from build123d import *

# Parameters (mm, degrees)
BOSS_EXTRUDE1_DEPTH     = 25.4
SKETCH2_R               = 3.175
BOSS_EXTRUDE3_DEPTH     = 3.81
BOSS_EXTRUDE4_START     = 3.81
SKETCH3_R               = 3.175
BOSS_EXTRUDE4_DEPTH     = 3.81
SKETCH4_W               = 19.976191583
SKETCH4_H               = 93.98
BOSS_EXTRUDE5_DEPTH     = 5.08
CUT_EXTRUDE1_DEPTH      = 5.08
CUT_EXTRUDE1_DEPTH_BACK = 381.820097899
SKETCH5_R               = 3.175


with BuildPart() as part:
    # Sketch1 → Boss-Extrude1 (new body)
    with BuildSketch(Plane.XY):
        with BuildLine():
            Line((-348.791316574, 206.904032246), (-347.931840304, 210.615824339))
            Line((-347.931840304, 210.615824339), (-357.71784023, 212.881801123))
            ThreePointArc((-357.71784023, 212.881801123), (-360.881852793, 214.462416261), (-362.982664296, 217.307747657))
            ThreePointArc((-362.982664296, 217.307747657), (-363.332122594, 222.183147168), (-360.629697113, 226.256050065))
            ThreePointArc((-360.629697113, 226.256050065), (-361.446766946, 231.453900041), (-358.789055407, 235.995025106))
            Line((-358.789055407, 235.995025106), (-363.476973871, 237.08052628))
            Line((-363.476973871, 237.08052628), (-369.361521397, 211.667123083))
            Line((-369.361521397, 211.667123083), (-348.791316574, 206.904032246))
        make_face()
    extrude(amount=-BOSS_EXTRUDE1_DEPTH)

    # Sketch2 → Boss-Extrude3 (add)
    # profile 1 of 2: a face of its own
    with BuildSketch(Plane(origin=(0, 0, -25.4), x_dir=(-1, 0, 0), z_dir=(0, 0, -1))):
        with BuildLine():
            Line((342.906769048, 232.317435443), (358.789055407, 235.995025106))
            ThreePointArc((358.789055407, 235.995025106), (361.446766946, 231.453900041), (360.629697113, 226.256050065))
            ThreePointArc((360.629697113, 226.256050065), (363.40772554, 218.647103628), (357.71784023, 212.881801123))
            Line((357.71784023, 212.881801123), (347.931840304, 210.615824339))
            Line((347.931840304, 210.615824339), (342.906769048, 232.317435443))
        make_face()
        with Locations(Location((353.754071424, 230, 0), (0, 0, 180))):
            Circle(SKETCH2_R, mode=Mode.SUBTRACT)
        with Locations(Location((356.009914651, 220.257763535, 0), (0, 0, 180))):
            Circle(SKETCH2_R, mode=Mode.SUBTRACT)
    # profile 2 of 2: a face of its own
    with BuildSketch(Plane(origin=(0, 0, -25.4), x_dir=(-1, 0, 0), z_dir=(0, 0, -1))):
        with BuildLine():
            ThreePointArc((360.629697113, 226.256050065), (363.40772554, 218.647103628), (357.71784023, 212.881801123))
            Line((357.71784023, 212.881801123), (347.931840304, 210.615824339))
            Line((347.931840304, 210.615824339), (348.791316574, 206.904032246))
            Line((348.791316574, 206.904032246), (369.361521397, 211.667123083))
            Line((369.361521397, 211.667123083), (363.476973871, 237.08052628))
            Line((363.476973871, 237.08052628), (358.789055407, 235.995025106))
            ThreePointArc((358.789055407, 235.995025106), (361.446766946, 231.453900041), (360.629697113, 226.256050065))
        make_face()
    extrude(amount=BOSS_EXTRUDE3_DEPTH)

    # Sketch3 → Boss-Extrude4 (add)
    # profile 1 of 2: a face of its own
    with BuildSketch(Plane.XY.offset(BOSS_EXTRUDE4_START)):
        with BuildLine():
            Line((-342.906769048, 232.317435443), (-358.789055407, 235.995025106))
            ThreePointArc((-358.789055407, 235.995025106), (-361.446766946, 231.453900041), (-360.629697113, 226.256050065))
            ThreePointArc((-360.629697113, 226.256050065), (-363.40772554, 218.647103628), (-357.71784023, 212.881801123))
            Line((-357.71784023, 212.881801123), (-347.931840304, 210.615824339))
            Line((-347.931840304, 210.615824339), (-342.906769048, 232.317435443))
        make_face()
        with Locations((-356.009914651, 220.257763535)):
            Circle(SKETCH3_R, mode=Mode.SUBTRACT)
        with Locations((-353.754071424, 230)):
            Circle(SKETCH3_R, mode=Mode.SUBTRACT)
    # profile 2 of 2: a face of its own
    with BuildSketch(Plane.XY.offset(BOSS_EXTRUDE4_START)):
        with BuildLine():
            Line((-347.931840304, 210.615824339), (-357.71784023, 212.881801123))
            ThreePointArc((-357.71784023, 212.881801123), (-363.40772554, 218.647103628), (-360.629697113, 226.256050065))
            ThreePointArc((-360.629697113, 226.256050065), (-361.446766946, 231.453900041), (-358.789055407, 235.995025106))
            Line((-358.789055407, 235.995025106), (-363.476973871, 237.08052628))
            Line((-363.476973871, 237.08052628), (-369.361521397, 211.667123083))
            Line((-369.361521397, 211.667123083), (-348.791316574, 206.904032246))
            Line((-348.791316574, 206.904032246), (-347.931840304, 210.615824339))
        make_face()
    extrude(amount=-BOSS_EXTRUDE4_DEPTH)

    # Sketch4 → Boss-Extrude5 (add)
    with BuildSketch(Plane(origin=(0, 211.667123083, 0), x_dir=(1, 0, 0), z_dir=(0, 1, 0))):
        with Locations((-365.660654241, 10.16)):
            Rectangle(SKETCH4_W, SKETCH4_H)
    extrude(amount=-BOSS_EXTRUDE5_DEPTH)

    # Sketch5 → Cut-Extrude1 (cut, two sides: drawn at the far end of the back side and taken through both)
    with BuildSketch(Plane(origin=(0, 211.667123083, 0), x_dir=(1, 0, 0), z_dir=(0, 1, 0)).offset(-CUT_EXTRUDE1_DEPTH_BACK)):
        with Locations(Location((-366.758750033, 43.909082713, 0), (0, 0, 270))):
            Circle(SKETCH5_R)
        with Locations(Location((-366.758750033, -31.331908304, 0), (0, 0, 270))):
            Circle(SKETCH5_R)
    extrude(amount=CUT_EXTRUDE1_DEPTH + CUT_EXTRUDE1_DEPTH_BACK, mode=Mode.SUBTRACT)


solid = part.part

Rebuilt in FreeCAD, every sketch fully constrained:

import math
import FreeCAD as App
import Part
import Sketcher
from FreeCAD import Vector
Q = App.Units.Quantity


def add_polygon(sketch, points):
    """Adds a closed chain of lines whose ends are joined by coincident constraints."""
    first, n = sketch.GeometryCount, len(points)
    for a, b in zip(points, points[1:] + points[:1]):
        sketch.addGeometry(Part.LineSegment(App.Vector(*a, 0), App.Vector(*b, 0)), False)
    for i in range(n):
        sketch.addConstraint(Sketcher.Constraint("Coincident", first + i, 2, first + (i + 1) % n, 1))

doc = App.newDocument("Part")
body = doc.addObject("PartDesign::Body", "Body")

# Sketch on XY plane
sketch1 = doc.addObject("Sketcher::SketchObject", "Sketch")
body.addObject(sketch1)
sketch1.AttachmentSupport = (doc.XY_Plane, [""])
sketch1.MapMode = "FlatFace"
sketch1.addGeometry([
    Part.LineSegment(Vector(-348.8, 206.9, 0), Vector(-347.9, 210.6, 0)),  # 0
    Part.LineSegment(Vector(-347.9, 210.6, 0), Vector(-357.7, 212.9, 0)),  # 1
    Part.ArcOfCircle(Part.Circle(Vector(-356, 220.3, 0), Vector(0, 0, 1), 7.6), math.radians(-157), math.radians(-103)),  # 2
    Part.ArcOfCircle(Part.Circle(Vector(-356, 220.3, 0), Vector(0, 0, 1), 7.6), math.radians(128), math.radians(203)),  # 3
    Part.ArcOfCircle(Part.Circle(Vector(-353.8, 230, 0), Vector(0, 0, 1), 7.8), math.radians(130), math.radians(209)),  # 4
    Part.LineSegment(Vector(-358.8, 236, 0), Vector(-363.5, 237.1, 0)),  # 5
    Part.LineSegment(Vector(-363.5, 237.1, 0), Vector(-369.4, 211.7, 0)),  # 6
    Part.LineSegment(Vector(-369.4, 211.7, 0), Vector(-348.8, 206.9, 0)),  # 7
], False)
sketch1.addConstraint([
    Sketcher.Constraint("Coincident", 0, 2, 1, 1),
    Sketcher.Constraint("Tangent", 1, 2, 2, 2),
    Sketcher.Constraint("Tangent", 2, 1, 3, 2),
    Sketcher.Constraint("Coincident", 3, 1, 4, 2),
    Sketcher.Constraint("Coincident", 4, 1, 5, 1),
    Sketcher.Constraint("Coincident", 5, 2, 6, 1),
    Sketcher.Constraint("Coincident", 6, 2, 7, 1),
    Sketcher.Constraint("Coincident", 7, 2, 0, 1),
    Sketcher.Constraint("Equal", 2, 3),
    Sketcher.Constraint("Perpendicular", 0, 1),
    Sketcher.Constraint("Parallel", 1, 5),
    Sketcher.Constraint("Perpendicular", 5, 6),
    Sketcher.Constraint("Perpendicular", 6, 7),
    Sketcher.Constraint("Distance", 0, Q("0.15 in")),
    Sketcher.Constraint("Distance", 6, Q("1.027 in")),
    Sketcher.Constraint("Radius", 2, 7.571118),
    Sketcher.Constraint("Radius", 4, 7.828882),
    Sketcher.Constraint("DistanceY", -1, 1, 4, 3, 230.0),
    Sketcher.Constraint("DistanceY", -1, 1, 1, 2, 212.881801),
    Sketcher.Constraint("DistanceX", 1, 2, 0, 2, 9.786),
    Sketcher.Constraint("DistanceY", 4, 1, 5, 2, 1.085501),
    Sketcher.Constraint("DistanceX", 3, 3, 7, 2, 7.218598),
    Sketcher.Constraint("Distance", 7, 21.114459),
    Sketcher.Constraint("DistanceX", 4, 3, -1, 1, 353.754071),
    Sketcher.Constraint("DistanceX", 2, 1, 3, 3, 6.97275),
])
pad1 = doc.addObject("PartDesign::Pad", "Pad")
body.addObject(pad1)
pad1.Profile = sketch1
pad1.Length = Q("1 in")
pad1.Reversed = True

# Sketch on XY plane
sketch2 = doc.addObject("Sketcher::SketchObject", "Sketch001")
body.addObject(sketch2)
sketch2.AttachmentSupport = (doc.XY_Plane, [""])
sketch2.MapMode = "FlatFace"
sketch2.AttachmentOffset = App.Placement(Vector(0, 0, -1 * 25.4), App.Rotation())
add_polygon(sketch2, [(-358.8, 236), (-342.9, 232.3), (-347.9, 210.6), (-348.8, 206.9), (-369.4, 211.7), (-363.5, 237.1)])  # lines 0-5
sketch2.addGeometry(Part.Circle(Vector(-356, 220.3, 0), Vector(0, 0, 1), 3.2), False)  # 6
sketch2.addGeometry(Part.Circle(Vector(-353.8, 230, 0), Vector(0, 0, 1), 3.2), False)  # 7
sketch2.addConstraint([
    Sketcher.Constraint("Equal", 6, 7),
    Sketcher.Constraint("Perpendicular", 0, 1),
    Sketcher.Constraint("Parallel", 1, 2),
    Sketcher.Constraint("Perpendicular", 2, 3),
    Sketcher.Constraint("Perpendicular", 3, 4),
    Sketcher.Constraint("Perpendicular", 4, 5),
    Sketcher.Constraint("Diameter", 6, Q("0.25 in")),
    Sketcher.Constraint("Distance", 2, Q("0.15 in")),
    Sketcher.Constraint("Distance", 1, Q("0.877 in")),
    Sketcher.Constraint("DistanceY", -1, 1, 7, 3, 230.0),
    Sketcher.Constraint("DistanceX", 6, 3, 2, 2, 7.218598),
    Sketcher.Constraint("DistanceY", 1, 2, 3, 2, 1.051299),
    Sketcher.Constraint("DistanceY", 1, 2, 4, 2, 26.464702),
    Sketcher.Constraint("DistanceY", 5, 2, 4, 2, 1.085501),
    Sketcher.Constraint("DistanceX", 7, 3, -1, 1, 353.754071),
    Sketcher.Constraint("DistanceX", 0, 2, -1, 1, 342.906769),
    Sketcher.Constraint("DistanceY", 6, 3, 0, 2, 12.059672),
    Sketcher.Constraint("DistanceY", -1, 1, 6, 3, 220.257764),
])
pad2 = doc.addObject("PartDesign::Pad", "Pad001")
body.addObject(pad2)
pad2.Profile = sketch2
pad2.Length = Q("0.15 in")
pad2.Reversed = True

# Sketch on XY plane
sketch3 = doc.addObject("Sketcher::SketchObject", "Sketch002")
body.addObject(sketch3)
sketch3.AttachmentSupport = (doc.XY_Plane, [""])
sketch3.MapMode = "FlatFace"
sketch3.AttachmentOffset = App.Placement(Vector(0, 0, 0.15 * 25.4), App.Rotation())
add_polygon(sketch3, [(-342.9, 232.3), (-358.8, 236), (-363.5, 237.1), (-369.4, 211.7), (-348.8, 206.9), (-347.9, 210.6)])  # lines 0-5
sketch3.addGeometry(Part.Circle(Vector(-356, 220.3, 0), Vector(0, 0, 1), 3.2), False)  # 6
sketch3.addGeometry(Part.Circle(Vector(-353.8, 230, 0), Vector(0, 0, 1), 3.2), False)  # 7
sketch3.addConstraint([
    Sketcher.Constraint("Equal", 6, 7),
    Sketcher.Constraint("Parallel", 0, 1),
    Sketcher.Constraint("Perpendicular", 1, 2),
    Sketcher.Constraint("Perpendicular", 2, 3),
    Sketcher.Constraint("Perpendicular", 3, 4),
    Sketcher.Constraint("Parallel", 4, 5),
    Sketcher.Constraint("Diameter", 6, Q("0.25 in")),
    Sketcher.Constraint("Distance", 4, Q("0.15 in")),
    Sketcher.Constraint("Distance", 2, Q("1.027 in")),
    Sketcher.Constraint("DistanceY", -1, 1, 7, 3, 230.0),
    Sketcher.Constraint("DistanceY", 0, 2, 1, 2, 1.085501),
    Sketcher.Constraint("DistanceX", 6, 3, 3, 2, 7.218598),
    Sketcher.Constraint("DistanceY", 4, 2, 2, 2, 1.051299),
    Sketcher.Constraint("DistanceY", 4, 2, 0, 2, 25.379201),
    Sketcher.Constraint("DistanceX", 7, 3, -1, 1, 353.754071),
    Sketcher.Constraint("DistanceX", 2, 2, -1, 1, 369.361521),
    Sketcher.Constraint("DistanceY", 6, 3, 0, 2, 15.737262),
    Sketcher.Constraint("DistanceY", -1, 1, 6, 3, 220.257764),
])
pad3 = doc.addObject("PartDesign::Pad", "Pad002")
body.addObject(pad3)
pad3.Profile = sketch3
pad3.Length = Q("0.15 in")
pad3.Reversed = True

# Sketch on XZ plane
sketch4 = doc.addObject("Sketcher::SketchObject", "Sketch003")
body.addObject(sketch4)
sketch4.AttachmentSupport = (doc.XZ_Plane, [""])
sketch4.MapMode = "FlatFace"
sketch4.AttachmentOffset = App.Placement(Vector(0, 0, -211.667123), App.Rotation())
add_polygon(sketch4, [(-376, -57), (-376, 37), (-356, 37), (-356, -57)])  # lines 0-3
sketch4.addConstraint([
    Sketcher.Constraint("Vertical", 0),
    Sketcher.Constraint("Horizontal", 1),
    Sketcher.Constraint("Vertical", 2),
    Sketcher.Constraint("Horizontal", 3),
    Sketcher.Constraint("DistanceY", 0, 1, 0, 2, Q("3.7 in")),
    Sketcher.Constraint("DistanceY", -1, 1, 0, 2, Q("1.45 in")),
    Sketcher.Constraint("DistanceX", 1, 1, 1, 2, 19.976192),
    Sketcher.Constraint("DistanceX", 0, 2, -1, 1, 375.64875),
])
pad4 = doc.addObject("PartDesign::Pad", "Pad003")
body.addObject(pad4)
pad4.Profile = sketch4
pad4.Length = Q("0.2 in")

# Sketch on XZ plane
sketch5 = doc.addObject("Sketcher::SketchObject", "Sketch004")
body.addObject(sketch5)
sketch5.AttachmentSupport = (doc.XZ_Plane, [""])
sketch5.MapMode = "FlatFace"
sketch5.AttachmentOffset = App.Placement(Vector(0, 0, -211.667123), App.Rotation())
sketch5.addGeometry([
    Part.Circle(Vector(-366.8, -43.9, 0), Vector(0, 0, 1), 3.2),
    Part.Circle(Vector(-366.8, 31.3, 0), Vector(0, 0, 1), 3.2),
], False)
sketch5.addConstraint([
    Sketcher.Constraint("Equal", 0, 1),
    Sketcher.Constraint("Vertical", 0, 3, 1, 3),
    Sketcher.Constraint("Diameter", 0, Q("0.25 in")),
    Sketcher.Constraint("DistanceX", 0, 3, -1, 1, 366.75875),
    Sketcher.Constraint("DistanceY", -1, 1, 1, 3, 31.331908),
    Sketcher.Constraint("DistanceY", 0, 3, 1, 3, 75.240991),
])
pocket1 = doc.addObject("PartDesign::Pocket", "Pocket")
body.addObject(pocket1)
pocket1.Profile = sketch5
pocket1.Type = "ThroughAll"
pocket1.Midplane = True

doc.recompute()
